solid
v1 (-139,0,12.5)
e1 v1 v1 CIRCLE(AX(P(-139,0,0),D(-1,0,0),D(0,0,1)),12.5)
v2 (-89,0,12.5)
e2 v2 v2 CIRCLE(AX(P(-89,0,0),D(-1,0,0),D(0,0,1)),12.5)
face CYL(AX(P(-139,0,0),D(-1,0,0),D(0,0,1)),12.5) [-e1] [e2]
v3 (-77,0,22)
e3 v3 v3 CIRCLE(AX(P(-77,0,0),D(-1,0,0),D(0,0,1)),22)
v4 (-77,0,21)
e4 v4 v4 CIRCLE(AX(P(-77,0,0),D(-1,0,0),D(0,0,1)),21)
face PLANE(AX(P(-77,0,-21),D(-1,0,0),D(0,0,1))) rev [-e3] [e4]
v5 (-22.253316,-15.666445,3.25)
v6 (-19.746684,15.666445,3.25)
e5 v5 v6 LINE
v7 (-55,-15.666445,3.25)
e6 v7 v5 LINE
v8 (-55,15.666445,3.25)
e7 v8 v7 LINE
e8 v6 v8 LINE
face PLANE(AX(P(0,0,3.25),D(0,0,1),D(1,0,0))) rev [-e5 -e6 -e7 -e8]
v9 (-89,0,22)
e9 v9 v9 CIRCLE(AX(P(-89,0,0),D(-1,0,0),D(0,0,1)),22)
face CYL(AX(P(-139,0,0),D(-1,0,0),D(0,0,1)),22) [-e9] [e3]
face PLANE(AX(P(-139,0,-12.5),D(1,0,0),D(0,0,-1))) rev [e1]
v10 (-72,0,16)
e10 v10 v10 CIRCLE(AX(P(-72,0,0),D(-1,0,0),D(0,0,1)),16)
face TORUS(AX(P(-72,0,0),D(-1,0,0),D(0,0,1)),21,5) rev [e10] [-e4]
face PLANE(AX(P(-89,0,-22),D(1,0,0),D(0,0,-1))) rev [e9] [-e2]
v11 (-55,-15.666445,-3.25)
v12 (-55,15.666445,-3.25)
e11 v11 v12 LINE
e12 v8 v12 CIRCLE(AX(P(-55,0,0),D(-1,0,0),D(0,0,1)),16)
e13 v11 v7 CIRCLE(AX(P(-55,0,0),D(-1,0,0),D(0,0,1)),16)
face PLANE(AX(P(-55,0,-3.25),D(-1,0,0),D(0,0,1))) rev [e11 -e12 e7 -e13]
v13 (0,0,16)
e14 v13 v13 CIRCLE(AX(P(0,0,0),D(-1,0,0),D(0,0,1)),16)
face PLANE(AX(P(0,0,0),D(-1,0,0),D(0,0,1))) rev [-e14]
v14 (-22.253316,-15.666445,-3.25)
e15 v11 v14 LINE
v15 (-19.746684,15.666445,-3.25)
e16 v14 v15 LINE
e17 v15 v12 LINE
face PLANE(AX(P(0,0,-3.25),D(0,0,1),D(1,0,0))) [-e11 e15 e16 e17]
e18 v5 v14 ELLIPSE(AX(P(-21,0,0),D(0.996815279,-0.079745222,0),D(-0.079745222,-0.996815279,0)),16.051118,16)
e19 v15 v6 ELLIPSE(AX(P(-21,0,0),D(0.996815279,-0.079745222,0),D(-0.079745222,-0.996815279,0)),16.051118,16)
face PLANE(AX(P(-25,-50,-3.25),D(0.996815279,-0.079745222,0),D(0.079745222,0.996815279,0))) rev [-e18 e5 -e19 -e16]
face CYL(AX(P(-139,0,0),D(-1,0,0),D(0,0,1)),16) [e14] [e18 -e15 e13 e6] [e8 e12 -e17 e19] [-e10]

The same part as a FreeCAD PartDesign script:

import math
import FreeCAD as App
import Part
import Sketcher
from FreeCAD import Vector

doc = App.newDocument("Part")
params = doc.addObject("Spreadsheet::Sheet", "Params")
for row, (alias, value) in enumerate([
    ("sketch1_radius", "5 mm"),
    ("sketch1_width", "139 mm"),
    ("sketch1_width2", "72 mm"),
    ("sketch1_width3", "12 mm"),
    ("sketch1_height", "16 mm"),
    ("revolution_angle", "360 deg"),
    ("sketch2_width", "30 mm"),
    ("sketch2_width2", "38 mm"),
    ("sketch2_height", "100 mm"),
    ("pocket1_length", "6.5 mm"),
], start=1):
    params.set(f"A{row}", alias)
    params.set(f"B{row}", "=" + value)
    params.setAlias(f"B{row}", alias)

body = doc.addObject("PartDesign::Body", "Body")

# Sketch on XZ plane
sketch1 = body.newObject("Sketcher::SketchObject", "Sketch")
sketch1.AttachmentSupport = (doc.getObject("XZ_Plane"), [""])
sketch1.MapMode = "FlatFace"
sketch1.addGeometry([
    Part.LineSegment(Vector(-139, 0, 0), Vector(0, 0, 0)),  # 0
    Part.LineSegment(Vector(0, 0, 0), Vector(0, -16, 0)),  # 1
    Part.LineSegment(Vector(0, -16, 0), Vector(-72, -16, 0)),  # 2
    Part.ArcOfCircle(Part.Circle(Vector(-72, -21, 0), Vector(0, 0, 1), 5), math.radians(90), math.radians(180)),  # 3
    Part.LineSegment(Vector(-77, -21, 0), Vector(-77, -22, 0)),  # 4
    Part.LineSegment(Vector(-77, -22, 0), Vector(-89, -22, 0)),  # 5
    Part.LineSegment(Vector(-89, -22, 0), Vector(-89, -12.5, 0)),  # 6
    Part.LineSegment(Vector(-89, -12.5, 0), Vector(-139, -12.5, 0)),  # 7
    Part.LineSegment(Vector(-139, -12.5, 0), Vector(-139, 0, 0)),  # 8
], False)
sketch1.addConstraint([
    Sketcher.Constraint("Coincident", 0, 2, 1, 1),
    Sketcher.Constraint("Coincident", 1, 2, 2, 1),
    Sketcher.Constraint("Tangent", 2, 2, 3, 1),
    Sketcher.Constraint("Tangent", 3, 2, 4, 1),
    Sketcher.Constraint("Coincident", 4, 2, 5, 1),
    Sketcher.Constraint("Coincident", 5, 2, 6, 1),
    Sketcher.Constraint("Coincident", 6, 2, 7, 1),
    Sketcher.Constraint("Coincident", 7, 2, 8, 1),
    Sketcher.Constraint("Coincident", 8, 2, 0, 1),
    Sketcher.Constraint("Horizontal", 0),
    Sketcher.Constraint("Vertical", 1),
    Sketcher.Constraint("Horizontal", 2),
    Sketcher.Constraint("Vertical", 4),
    Sketcher.Constraint("Horizontal", 5),
    Sketcher.Constraint("Vertical", 6),
    Sketcher.Constraint("Horizontal", 7),
    Sketcher.Constraint("Vertical", 8),
    Sketcher.Constraint("Coincident", 0, 2, -1, 1),
    Sketcher.Constraint("Radius", 3, 5.0),
    Sketcher.Constraint("DistanceX", 0, 1, 0, 2, 139.0),
    Sketcher.Constraint("DistanceX", 2, 2, 2, 1, 72.0),
    Sketcher.Constraint("DistanceX", 5, 2, 5, 1, 12.0),
    Sketcher.Constraint("DistanceY", 1, 2, 1, 1, 16.0),
    Sketcher.Constraint("DistanceY", 4, 2, 4, 1, 1.0),
    Sketcher.Constraint("DistanceY", 6, 1, 6, 2, 9.5),
])
sketch1.setExpression("Constraints[18]", "Params.sketch1_radius")
sketch1.setExpression("Constraints[19]", "Params.sketch1_width")
sketch1.setExpression("Constraints[20]", "Params.sketch1_width2")
sketch1.setExpression("Constraints[21]", "Params.sketch1_width3")
sketch1.setExpression("Constraints[22]", "Params.sketch1_height")
revolution = body.newObject("PartDesign::Revolution", "Revolution")
revolution.Profile = sketch1
revolution.ReferenceAxis = (sketch1, ["H_Axis"])
revolution.setExpression("Angle", "Params.revolution_angle")

# Sketch on XY plane
sketch2 = body.newObject("Sketcher::SketchObject", "Sketch001")
sketch2.AttachmentSupport = (doc.getObject("XY_Plane"), [""])
sketch2.MapMode = "FlatFace"
sketch2.addGeometry([
    Part.LineSegment(Vector(-55, 50, 0), Vector(-55, -50, 0)),
    Part.LineSegment(Vector(-55, -50, 0), Vector(-25, -50, 0)),
    Part.LineSegment(Vector(-25, -50, 0), Vector(-17, 50, 0)),
    Part.LineSegment(Vector(-17, 50, 0), Vector(-55, 50, 0)),
], False)
sketch2.addConstraint([
    Sketcher.Constraint("Coincident", 0, 2, 1, 1),
    Sketcher.Constraint("Coincident", 1, 2, 2, 1),
    Sketcher.Constraint("Coincident", 2, 2, 3, 1),
    Sketcher.Constraint("Coincident", 3, 2, 0, 1),
    Sketcher.Constraint("Vertical", 0),
    Sketcher.Constraint("Horizontal", 1),
    Sketcher.Constraint("Horizontal", 3),
    Sketcher.Constraint("DistanceX", 1, 1, 1, 2, 30.0),
    Sketcher.Constraint("DistanceX", 3, 2, 3, 1, 38.0),
    Sketcher.Constraint("DistanceY", 0, 2, 0, 1, 100.0),
    Sketcher.Constraint("DistanceX", 0, 2, -1, 1, 55.0),
    Sketcher.Constraint("DistanceY", 0, 2, -1, 1, 50.0),
])
sketch2.setExpression("Constraints[7]", "Params.sketch2_width")
sketch2.setExpression("Constraints[8]", "Params.sketch2_width2")
sketch2.setExpression("Constraints[9]", "Params.sketch2_height")
pocket1 = body.newObject("PartDesign::Pocket", "Pocket")
pocket1.Profile = sketch2
pocket1.setExpression("Length", "Params.pocket1_length")
pocket1.Midplane = True

doc.recompute()
